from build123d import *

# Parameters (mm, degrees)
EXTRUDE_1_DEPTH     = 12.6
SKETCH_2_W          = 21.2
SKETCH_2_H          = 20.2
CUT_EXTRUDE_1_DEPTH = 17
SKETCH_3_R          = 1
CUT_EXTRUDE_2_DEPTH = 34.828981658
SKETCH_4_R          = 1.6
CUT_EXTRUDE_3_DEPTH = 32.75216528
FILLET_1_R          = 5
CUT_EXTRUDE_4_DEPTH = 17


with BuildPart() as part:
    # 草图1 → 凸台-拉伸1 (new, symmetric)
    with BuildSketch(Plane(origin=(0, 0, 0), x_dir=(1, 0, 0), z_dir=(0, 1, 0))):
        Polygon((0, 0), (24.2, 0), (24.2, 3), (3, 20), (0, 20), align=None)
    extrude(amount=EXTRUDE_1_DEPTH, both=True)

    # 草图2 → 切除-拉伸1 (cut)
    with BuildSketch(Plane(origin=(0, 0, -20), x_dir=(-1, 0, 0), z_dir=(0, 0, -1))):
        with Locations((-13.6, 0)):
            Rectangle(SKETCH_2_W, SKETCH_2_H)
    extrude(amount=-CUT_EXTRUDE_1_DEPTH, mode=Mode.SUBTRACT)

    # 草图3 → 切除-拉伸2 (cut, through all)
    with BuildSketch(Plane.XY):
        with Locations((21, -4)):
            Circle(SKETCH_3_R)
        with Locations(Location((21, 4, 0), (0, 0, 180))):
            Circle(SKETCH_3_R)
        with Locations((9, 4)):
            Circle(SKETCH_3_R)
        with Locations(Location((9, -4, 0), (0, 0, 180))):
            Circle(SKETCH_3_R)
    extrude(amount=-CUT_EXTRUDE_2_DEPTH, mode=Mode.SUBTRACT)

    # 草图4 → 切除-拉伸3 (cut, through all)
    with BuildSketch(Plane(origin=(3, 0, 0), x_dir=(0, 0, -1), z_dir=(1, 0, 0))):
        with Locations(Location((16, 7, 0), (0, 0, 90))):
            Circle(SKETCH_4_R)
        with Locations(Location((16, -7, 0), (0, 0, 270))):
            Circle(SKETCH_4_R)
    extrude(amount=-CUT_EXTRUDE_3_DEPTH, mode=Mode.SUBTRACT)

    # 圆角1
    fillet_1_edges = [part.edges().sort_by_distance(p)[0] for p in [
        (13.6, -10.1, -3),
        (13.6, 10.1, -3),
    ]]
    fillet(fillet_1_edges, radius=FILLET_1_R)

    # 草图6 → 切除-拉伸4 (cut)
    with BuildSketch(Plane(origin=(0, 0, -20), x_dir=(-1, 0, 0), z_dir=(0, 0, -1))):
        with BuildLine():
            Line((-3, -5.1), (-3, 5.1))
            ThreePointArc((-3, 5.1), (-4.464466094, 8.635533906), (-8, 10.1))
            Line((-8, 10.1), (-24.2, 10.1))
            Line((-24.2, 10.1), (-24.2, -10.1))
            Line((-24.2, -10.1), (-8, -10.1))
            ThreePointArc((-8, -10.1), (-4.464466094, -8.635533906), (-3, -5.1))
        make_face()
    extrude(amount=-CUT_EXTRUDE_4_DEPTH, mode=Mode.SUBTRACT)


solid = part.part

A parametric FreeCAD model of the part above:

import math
import FreeCAD as App
import Part
import Sketcher
from FreeCAD import Vector


def edges_at(feature, points):
    """Names of the edges that pass closest to the given points."""
    edges = feature.Shape.Edges
    near = lambda p: min(range(len(edges)), key=lambda i: edges[i].distToShape(Part.Vertex(*p))[0])
    return sorted({f"Edge{near(p) + 1}" for p in points})

doc = App.newDocument("Part")
body = doc.addObject("PartDesign::Body", "Body")

# Sketch on XZ plane
sketch1 = body.newObject("Sketcher::SketchObject", "Sketch")
sketch1.AttachmentSupport = (doc.getObject("XZ_Plane"), [""])
sketch1.MapMode = "FlatFace"
sketch1.addGeometry([
    Part.LineSegment(Vector(0, 0, 0), Vector(24.2, 0, 0)),  # 0
    Part.LineSegment(Vector(24.2, 0, 0), Vector(24.2, -3, 0)),  # 1
    Part.LineSegment(Vector(24.2, -3, 0), Vector(3, -20, 0)),  # 2
    Part.LineSegment(Vector(3, -20, 0), Vector(0, -20, 0)),  # 3
    Part.LineSegment(Vector(0, -20, 0), Vector(0, 0, 0)),  # 4
], False)
sketch1.addConstraint([
    Sketcher.Constraint("Coincident", 0, 2, 1, 1),
    Sketcher.Constraint("Coincident", 1, 2, 2, 1),
    Sketcher.Constraint("Coincident", 2, 2, 3, 1),
    Sketcher.Constraint("Coincident", 3, 2, 4, 1),
    Sketcher.Constraint("Coincident", 4, 2, 0, 1),
    Sketcher.Constraint("Horizontal", 0),
    Sketcher.Constraint("Vertical", 1),
    Sketcher.Constraint("Horizontal", 3),
    Sketcher.Constraint("Vertical", 4),
    Sketcher.Constraint("Coincident", 4, 2, -1, 1),
    Sketcher.Constraint("Equal", 3, 1),
    Sketcher.Constraint("DistanceX", 3, 2, 3, 1, 3.0),
    Sketcher.Constraint("DistanceY", 4, 1, 4, 2, 20.0),
    Sketcher.Constraint("DistanceX", 0, 1, 0, 2, 24.2),
])
pad1 = body.newObject("PartDesign::Pad", "Pad")
pad1.Profile = sketch1
pad1.Length = 25.2
pad1.Midplane = True

# Sketch on XY plane
sketch2 = body.newObject("Sketcher::SketchObject", "Sketch001")
sketch2.AttachmentSupport = (doc.getObject("XY_Plane"), [""])
sketch2.MapMode = "FlatFace"
sketch2.AttachmentOffset = App.Placement(Vector(0, 0, -20), App.Rotation())
sketch2.addGeometry([
    Part.LineSegment(Vector(24, 10, 0), Vector(24, -10, 0)),
    Part.LineSegment(Vector(24, -10, 0), Vector(3, -10, 0)),
    Part.LineSegment(Vector(3, -10, 0), Vector(3, 10, 0)),
    Part.LineSegment(Vector(3, 10, 0), Vector(24, 10, 0)),
], False)
sketch2.addConstraint([
    Sketcher.Constraint("Coincident", 0, 2, 1, 1),
    Sketcher.Constraint("Coincident", 1, 2, 2, 1),
    Sketcher.Constraint("Coincident", 2, 2, 3, 1),
    Sketcher.Constraint("Coincident", 3, 2, 0, 1),
    Sketcher.Constraint("Vertical", 0),
    Sketcher.Constraint("Horizontal", 1),
    Sketcher.Constraint("Vertical", 2),
    Sketcher.Constraint("Horizontal", 3),
    Sketcher.Constraint("DistanceX", 1, 2, 1, 1, 21.2),
    Sketcher.Constraint("DistanceY", 0, 2, 0, 1, 20.2),
    Sketcher.Constraint("DistanceX", -1, 1, 1, 2, 3.0),
    Sketcher.Constraint("DistanceY", 0, 2, -1, 1, 10.1),
])
pocket1 = body.newObject("PartDesign::Pocket", "Pocket")
pocket1.Profile = sketch2
pocket1.Length = 17
pocket1.Reversed = True

# Sketch on XY plane
sketch3 = body.newObject("Sketcher::SketchObject", "Sketch002")
sketch3.AttachmentSupport = (doc.getObject("XY_Plane"), [""])
sketch3.MapMode = "FlatFace"
sketch3.addGeometry([
    Part.Circle(Vector(21, -4, 0), Vector(0, 0, 1), 1),
    Part.Circle(Vector(21, 4, 0), Vector(0, 0, 1), 1),
    Part.Circle(Vector(9, 4, 0), Vector(0, 0, 1), 1),
    Part.Circle(Vector(9, -4, 0), Vector(0, 0, 1), 1),
], False)
sketch3.addConstraint([
    Sketcher.Constraint("Equal", 0, 1),
    Sketcher.Constraint("Equal", 1, 2),
    Sketcher.Constraint("Equal", 2, 3),
    Sketcher.Constraint("Symmetric", 0, 3, 1, 3, -1),
    Sketcher.Constraint("Symmetric", 2, 3, 3, 3, -1),
    Sketcher.Constraint("Horizontal", 1, 3, 2, 3),
    Sketcher.Constraint("Diameter", 0, 2.0),
    Sketcher.Constraint("DistanceX", -1, 1, 0, 3, 21.0),
    Sketcher.Constraint("DistanceY", 0, 3, -1, 1, 4.0),
    Sketcher.Constraint("DistanceX", -1, 1, 2, 3, 9.0),
])
pocket2 = body.newObject("PartDesign::Pocket", "Pocket001")
pocket2.Profile = sketch3
pocket2.Type = "ThroughAll"

# Sketch on YZ plane
sketch4 = body.newObject("Sketcher::SketchObject", "Sketch003")
sketch4.AttachmentSupport = (doc.getObject("YZ_Plane"), [""])
sketch4.MapMode = "FlatFace"
sketch4.AttachmentOffset = App.Placement(Vector(0, 0, 3), App.Rotation())
sketch4.addGeometry([
    Part.Circle(Vector(7, -16, 0), Vector(0, 0, 1), 1.6),
    Part.Circle(Vector(-7, -16, 0), Vector(0, 0, 1), 1.6),
], False)
sketch4.addConstraint([
    Sketcher.Constraint("Equal", 0, 1),
    Sketcher.Constraint("Symmetric", 0, 3, 1, 3, -2),
    Sketcher.Constraint("Diameter", 0, 3.2),
    Sketcher.Constraint("DistanceX", -1, 1, 0, 3, 7.0),
    Sketcher.Constraint("DistanceY", 0, 3, -1, 1, 16.0),
])
pocket3 = body.newObject("PartDesign::Pocket", "Pocket002")
pocket3.Profile = sketch4
pocket3.Type = "ThroughAll"
doc.recompute()

fillet = body.newObject("PartDesign::Fillet", "Fillet")
fillet.Base = (pocket3, edges_at(pocket3, [(13.6, -10.1, -3), (13.6, 10.1, -3)]))
fillet.Radius = 5

# Sketch on XY plane
sketch5 = body.newObject("Sketcher::SketchObject", "Sketch004")
sketch5.AttachmentSupport = (doc.getObject("XY_Plane"), [""])
sketch5.MapMode = "FlatFace"
sketch5.AttachmentOffset = App.Placement(Vector(0, 0, -20), App.Rotation())
sketch5.addGeometry([
    Part.LineSegment(Vector(3, -5, 0), Vector(3, 5, 0)),  # 0
    Part.ArcOfCircle(Part.Circle(Vector(8, 5, 0), Vector(0, 0, 1), 5), math.radians(90), math.radians(180)),  # 1
    Part.LineSegment(Vector(8, 10, 0), Vector(24, 10, 0)),  # 2
    Part.LineSegment(Vector(24, 10, 0), Vector(24, -10, 0)),  # 3
    Part.LineSegment(Vector(24, -10, 0), Vector(8, -10, 0)),  # 4
    Part.ArcOfCircle(Part.Circle(Vector(8, -5, 0), Vector(0, 0, 1), 5), math.radians(180), math.radians(270)),  # 5
], False)
sketch5.addConstraint([
    Sketcher.Constraint("Tangent", 0, 2, 1, 2),
    Sketcher.Constraint("Tangent", 1, 1, 2, 1),
    Sketcher.Constraint("Coincident", 2, 2, 3, 1),
    Sketcher.Constraint("Coincident", 3, 2, 4, 1),
    Sketcher.Constraint("Tangent", 4, 2, 5, 2),
    Sketcher.Constraint("Tangent", 5, 1, 0, 1),
    Sketcher.Constraint("Vertical", 0),
    Sketcher.Constraint("Horizontal", 2),
    Sketcher.Constraint("Vertical", 3),
    Sketcher.Constraint("Horizontal", 4),
    Sketcher.Constraint("Equal", 1, 5),
    Sketcher.Constraint("Radius", 1, 5.0),
    Sketcher.Constraint("DistanceX", 2, 1, 2, 2, 16.2),
    Sketcher.Constraint("DistanceY", 0, 1, 0, 2, 10.2),
    Sketcher.Constraint("DistanceX", -1, 1, 1, 3, 8.0),
    Sketcher.Constraint("DistanceY", -1, 1, 1, 3, 5.1),
])
pocket4 = body.newObject("PartDesign::Pocket", "Pocket003")
pocket4.Profile = sketch5
pocket4.Length = 17
pocket4.Reversed = True

doc.recompute()
